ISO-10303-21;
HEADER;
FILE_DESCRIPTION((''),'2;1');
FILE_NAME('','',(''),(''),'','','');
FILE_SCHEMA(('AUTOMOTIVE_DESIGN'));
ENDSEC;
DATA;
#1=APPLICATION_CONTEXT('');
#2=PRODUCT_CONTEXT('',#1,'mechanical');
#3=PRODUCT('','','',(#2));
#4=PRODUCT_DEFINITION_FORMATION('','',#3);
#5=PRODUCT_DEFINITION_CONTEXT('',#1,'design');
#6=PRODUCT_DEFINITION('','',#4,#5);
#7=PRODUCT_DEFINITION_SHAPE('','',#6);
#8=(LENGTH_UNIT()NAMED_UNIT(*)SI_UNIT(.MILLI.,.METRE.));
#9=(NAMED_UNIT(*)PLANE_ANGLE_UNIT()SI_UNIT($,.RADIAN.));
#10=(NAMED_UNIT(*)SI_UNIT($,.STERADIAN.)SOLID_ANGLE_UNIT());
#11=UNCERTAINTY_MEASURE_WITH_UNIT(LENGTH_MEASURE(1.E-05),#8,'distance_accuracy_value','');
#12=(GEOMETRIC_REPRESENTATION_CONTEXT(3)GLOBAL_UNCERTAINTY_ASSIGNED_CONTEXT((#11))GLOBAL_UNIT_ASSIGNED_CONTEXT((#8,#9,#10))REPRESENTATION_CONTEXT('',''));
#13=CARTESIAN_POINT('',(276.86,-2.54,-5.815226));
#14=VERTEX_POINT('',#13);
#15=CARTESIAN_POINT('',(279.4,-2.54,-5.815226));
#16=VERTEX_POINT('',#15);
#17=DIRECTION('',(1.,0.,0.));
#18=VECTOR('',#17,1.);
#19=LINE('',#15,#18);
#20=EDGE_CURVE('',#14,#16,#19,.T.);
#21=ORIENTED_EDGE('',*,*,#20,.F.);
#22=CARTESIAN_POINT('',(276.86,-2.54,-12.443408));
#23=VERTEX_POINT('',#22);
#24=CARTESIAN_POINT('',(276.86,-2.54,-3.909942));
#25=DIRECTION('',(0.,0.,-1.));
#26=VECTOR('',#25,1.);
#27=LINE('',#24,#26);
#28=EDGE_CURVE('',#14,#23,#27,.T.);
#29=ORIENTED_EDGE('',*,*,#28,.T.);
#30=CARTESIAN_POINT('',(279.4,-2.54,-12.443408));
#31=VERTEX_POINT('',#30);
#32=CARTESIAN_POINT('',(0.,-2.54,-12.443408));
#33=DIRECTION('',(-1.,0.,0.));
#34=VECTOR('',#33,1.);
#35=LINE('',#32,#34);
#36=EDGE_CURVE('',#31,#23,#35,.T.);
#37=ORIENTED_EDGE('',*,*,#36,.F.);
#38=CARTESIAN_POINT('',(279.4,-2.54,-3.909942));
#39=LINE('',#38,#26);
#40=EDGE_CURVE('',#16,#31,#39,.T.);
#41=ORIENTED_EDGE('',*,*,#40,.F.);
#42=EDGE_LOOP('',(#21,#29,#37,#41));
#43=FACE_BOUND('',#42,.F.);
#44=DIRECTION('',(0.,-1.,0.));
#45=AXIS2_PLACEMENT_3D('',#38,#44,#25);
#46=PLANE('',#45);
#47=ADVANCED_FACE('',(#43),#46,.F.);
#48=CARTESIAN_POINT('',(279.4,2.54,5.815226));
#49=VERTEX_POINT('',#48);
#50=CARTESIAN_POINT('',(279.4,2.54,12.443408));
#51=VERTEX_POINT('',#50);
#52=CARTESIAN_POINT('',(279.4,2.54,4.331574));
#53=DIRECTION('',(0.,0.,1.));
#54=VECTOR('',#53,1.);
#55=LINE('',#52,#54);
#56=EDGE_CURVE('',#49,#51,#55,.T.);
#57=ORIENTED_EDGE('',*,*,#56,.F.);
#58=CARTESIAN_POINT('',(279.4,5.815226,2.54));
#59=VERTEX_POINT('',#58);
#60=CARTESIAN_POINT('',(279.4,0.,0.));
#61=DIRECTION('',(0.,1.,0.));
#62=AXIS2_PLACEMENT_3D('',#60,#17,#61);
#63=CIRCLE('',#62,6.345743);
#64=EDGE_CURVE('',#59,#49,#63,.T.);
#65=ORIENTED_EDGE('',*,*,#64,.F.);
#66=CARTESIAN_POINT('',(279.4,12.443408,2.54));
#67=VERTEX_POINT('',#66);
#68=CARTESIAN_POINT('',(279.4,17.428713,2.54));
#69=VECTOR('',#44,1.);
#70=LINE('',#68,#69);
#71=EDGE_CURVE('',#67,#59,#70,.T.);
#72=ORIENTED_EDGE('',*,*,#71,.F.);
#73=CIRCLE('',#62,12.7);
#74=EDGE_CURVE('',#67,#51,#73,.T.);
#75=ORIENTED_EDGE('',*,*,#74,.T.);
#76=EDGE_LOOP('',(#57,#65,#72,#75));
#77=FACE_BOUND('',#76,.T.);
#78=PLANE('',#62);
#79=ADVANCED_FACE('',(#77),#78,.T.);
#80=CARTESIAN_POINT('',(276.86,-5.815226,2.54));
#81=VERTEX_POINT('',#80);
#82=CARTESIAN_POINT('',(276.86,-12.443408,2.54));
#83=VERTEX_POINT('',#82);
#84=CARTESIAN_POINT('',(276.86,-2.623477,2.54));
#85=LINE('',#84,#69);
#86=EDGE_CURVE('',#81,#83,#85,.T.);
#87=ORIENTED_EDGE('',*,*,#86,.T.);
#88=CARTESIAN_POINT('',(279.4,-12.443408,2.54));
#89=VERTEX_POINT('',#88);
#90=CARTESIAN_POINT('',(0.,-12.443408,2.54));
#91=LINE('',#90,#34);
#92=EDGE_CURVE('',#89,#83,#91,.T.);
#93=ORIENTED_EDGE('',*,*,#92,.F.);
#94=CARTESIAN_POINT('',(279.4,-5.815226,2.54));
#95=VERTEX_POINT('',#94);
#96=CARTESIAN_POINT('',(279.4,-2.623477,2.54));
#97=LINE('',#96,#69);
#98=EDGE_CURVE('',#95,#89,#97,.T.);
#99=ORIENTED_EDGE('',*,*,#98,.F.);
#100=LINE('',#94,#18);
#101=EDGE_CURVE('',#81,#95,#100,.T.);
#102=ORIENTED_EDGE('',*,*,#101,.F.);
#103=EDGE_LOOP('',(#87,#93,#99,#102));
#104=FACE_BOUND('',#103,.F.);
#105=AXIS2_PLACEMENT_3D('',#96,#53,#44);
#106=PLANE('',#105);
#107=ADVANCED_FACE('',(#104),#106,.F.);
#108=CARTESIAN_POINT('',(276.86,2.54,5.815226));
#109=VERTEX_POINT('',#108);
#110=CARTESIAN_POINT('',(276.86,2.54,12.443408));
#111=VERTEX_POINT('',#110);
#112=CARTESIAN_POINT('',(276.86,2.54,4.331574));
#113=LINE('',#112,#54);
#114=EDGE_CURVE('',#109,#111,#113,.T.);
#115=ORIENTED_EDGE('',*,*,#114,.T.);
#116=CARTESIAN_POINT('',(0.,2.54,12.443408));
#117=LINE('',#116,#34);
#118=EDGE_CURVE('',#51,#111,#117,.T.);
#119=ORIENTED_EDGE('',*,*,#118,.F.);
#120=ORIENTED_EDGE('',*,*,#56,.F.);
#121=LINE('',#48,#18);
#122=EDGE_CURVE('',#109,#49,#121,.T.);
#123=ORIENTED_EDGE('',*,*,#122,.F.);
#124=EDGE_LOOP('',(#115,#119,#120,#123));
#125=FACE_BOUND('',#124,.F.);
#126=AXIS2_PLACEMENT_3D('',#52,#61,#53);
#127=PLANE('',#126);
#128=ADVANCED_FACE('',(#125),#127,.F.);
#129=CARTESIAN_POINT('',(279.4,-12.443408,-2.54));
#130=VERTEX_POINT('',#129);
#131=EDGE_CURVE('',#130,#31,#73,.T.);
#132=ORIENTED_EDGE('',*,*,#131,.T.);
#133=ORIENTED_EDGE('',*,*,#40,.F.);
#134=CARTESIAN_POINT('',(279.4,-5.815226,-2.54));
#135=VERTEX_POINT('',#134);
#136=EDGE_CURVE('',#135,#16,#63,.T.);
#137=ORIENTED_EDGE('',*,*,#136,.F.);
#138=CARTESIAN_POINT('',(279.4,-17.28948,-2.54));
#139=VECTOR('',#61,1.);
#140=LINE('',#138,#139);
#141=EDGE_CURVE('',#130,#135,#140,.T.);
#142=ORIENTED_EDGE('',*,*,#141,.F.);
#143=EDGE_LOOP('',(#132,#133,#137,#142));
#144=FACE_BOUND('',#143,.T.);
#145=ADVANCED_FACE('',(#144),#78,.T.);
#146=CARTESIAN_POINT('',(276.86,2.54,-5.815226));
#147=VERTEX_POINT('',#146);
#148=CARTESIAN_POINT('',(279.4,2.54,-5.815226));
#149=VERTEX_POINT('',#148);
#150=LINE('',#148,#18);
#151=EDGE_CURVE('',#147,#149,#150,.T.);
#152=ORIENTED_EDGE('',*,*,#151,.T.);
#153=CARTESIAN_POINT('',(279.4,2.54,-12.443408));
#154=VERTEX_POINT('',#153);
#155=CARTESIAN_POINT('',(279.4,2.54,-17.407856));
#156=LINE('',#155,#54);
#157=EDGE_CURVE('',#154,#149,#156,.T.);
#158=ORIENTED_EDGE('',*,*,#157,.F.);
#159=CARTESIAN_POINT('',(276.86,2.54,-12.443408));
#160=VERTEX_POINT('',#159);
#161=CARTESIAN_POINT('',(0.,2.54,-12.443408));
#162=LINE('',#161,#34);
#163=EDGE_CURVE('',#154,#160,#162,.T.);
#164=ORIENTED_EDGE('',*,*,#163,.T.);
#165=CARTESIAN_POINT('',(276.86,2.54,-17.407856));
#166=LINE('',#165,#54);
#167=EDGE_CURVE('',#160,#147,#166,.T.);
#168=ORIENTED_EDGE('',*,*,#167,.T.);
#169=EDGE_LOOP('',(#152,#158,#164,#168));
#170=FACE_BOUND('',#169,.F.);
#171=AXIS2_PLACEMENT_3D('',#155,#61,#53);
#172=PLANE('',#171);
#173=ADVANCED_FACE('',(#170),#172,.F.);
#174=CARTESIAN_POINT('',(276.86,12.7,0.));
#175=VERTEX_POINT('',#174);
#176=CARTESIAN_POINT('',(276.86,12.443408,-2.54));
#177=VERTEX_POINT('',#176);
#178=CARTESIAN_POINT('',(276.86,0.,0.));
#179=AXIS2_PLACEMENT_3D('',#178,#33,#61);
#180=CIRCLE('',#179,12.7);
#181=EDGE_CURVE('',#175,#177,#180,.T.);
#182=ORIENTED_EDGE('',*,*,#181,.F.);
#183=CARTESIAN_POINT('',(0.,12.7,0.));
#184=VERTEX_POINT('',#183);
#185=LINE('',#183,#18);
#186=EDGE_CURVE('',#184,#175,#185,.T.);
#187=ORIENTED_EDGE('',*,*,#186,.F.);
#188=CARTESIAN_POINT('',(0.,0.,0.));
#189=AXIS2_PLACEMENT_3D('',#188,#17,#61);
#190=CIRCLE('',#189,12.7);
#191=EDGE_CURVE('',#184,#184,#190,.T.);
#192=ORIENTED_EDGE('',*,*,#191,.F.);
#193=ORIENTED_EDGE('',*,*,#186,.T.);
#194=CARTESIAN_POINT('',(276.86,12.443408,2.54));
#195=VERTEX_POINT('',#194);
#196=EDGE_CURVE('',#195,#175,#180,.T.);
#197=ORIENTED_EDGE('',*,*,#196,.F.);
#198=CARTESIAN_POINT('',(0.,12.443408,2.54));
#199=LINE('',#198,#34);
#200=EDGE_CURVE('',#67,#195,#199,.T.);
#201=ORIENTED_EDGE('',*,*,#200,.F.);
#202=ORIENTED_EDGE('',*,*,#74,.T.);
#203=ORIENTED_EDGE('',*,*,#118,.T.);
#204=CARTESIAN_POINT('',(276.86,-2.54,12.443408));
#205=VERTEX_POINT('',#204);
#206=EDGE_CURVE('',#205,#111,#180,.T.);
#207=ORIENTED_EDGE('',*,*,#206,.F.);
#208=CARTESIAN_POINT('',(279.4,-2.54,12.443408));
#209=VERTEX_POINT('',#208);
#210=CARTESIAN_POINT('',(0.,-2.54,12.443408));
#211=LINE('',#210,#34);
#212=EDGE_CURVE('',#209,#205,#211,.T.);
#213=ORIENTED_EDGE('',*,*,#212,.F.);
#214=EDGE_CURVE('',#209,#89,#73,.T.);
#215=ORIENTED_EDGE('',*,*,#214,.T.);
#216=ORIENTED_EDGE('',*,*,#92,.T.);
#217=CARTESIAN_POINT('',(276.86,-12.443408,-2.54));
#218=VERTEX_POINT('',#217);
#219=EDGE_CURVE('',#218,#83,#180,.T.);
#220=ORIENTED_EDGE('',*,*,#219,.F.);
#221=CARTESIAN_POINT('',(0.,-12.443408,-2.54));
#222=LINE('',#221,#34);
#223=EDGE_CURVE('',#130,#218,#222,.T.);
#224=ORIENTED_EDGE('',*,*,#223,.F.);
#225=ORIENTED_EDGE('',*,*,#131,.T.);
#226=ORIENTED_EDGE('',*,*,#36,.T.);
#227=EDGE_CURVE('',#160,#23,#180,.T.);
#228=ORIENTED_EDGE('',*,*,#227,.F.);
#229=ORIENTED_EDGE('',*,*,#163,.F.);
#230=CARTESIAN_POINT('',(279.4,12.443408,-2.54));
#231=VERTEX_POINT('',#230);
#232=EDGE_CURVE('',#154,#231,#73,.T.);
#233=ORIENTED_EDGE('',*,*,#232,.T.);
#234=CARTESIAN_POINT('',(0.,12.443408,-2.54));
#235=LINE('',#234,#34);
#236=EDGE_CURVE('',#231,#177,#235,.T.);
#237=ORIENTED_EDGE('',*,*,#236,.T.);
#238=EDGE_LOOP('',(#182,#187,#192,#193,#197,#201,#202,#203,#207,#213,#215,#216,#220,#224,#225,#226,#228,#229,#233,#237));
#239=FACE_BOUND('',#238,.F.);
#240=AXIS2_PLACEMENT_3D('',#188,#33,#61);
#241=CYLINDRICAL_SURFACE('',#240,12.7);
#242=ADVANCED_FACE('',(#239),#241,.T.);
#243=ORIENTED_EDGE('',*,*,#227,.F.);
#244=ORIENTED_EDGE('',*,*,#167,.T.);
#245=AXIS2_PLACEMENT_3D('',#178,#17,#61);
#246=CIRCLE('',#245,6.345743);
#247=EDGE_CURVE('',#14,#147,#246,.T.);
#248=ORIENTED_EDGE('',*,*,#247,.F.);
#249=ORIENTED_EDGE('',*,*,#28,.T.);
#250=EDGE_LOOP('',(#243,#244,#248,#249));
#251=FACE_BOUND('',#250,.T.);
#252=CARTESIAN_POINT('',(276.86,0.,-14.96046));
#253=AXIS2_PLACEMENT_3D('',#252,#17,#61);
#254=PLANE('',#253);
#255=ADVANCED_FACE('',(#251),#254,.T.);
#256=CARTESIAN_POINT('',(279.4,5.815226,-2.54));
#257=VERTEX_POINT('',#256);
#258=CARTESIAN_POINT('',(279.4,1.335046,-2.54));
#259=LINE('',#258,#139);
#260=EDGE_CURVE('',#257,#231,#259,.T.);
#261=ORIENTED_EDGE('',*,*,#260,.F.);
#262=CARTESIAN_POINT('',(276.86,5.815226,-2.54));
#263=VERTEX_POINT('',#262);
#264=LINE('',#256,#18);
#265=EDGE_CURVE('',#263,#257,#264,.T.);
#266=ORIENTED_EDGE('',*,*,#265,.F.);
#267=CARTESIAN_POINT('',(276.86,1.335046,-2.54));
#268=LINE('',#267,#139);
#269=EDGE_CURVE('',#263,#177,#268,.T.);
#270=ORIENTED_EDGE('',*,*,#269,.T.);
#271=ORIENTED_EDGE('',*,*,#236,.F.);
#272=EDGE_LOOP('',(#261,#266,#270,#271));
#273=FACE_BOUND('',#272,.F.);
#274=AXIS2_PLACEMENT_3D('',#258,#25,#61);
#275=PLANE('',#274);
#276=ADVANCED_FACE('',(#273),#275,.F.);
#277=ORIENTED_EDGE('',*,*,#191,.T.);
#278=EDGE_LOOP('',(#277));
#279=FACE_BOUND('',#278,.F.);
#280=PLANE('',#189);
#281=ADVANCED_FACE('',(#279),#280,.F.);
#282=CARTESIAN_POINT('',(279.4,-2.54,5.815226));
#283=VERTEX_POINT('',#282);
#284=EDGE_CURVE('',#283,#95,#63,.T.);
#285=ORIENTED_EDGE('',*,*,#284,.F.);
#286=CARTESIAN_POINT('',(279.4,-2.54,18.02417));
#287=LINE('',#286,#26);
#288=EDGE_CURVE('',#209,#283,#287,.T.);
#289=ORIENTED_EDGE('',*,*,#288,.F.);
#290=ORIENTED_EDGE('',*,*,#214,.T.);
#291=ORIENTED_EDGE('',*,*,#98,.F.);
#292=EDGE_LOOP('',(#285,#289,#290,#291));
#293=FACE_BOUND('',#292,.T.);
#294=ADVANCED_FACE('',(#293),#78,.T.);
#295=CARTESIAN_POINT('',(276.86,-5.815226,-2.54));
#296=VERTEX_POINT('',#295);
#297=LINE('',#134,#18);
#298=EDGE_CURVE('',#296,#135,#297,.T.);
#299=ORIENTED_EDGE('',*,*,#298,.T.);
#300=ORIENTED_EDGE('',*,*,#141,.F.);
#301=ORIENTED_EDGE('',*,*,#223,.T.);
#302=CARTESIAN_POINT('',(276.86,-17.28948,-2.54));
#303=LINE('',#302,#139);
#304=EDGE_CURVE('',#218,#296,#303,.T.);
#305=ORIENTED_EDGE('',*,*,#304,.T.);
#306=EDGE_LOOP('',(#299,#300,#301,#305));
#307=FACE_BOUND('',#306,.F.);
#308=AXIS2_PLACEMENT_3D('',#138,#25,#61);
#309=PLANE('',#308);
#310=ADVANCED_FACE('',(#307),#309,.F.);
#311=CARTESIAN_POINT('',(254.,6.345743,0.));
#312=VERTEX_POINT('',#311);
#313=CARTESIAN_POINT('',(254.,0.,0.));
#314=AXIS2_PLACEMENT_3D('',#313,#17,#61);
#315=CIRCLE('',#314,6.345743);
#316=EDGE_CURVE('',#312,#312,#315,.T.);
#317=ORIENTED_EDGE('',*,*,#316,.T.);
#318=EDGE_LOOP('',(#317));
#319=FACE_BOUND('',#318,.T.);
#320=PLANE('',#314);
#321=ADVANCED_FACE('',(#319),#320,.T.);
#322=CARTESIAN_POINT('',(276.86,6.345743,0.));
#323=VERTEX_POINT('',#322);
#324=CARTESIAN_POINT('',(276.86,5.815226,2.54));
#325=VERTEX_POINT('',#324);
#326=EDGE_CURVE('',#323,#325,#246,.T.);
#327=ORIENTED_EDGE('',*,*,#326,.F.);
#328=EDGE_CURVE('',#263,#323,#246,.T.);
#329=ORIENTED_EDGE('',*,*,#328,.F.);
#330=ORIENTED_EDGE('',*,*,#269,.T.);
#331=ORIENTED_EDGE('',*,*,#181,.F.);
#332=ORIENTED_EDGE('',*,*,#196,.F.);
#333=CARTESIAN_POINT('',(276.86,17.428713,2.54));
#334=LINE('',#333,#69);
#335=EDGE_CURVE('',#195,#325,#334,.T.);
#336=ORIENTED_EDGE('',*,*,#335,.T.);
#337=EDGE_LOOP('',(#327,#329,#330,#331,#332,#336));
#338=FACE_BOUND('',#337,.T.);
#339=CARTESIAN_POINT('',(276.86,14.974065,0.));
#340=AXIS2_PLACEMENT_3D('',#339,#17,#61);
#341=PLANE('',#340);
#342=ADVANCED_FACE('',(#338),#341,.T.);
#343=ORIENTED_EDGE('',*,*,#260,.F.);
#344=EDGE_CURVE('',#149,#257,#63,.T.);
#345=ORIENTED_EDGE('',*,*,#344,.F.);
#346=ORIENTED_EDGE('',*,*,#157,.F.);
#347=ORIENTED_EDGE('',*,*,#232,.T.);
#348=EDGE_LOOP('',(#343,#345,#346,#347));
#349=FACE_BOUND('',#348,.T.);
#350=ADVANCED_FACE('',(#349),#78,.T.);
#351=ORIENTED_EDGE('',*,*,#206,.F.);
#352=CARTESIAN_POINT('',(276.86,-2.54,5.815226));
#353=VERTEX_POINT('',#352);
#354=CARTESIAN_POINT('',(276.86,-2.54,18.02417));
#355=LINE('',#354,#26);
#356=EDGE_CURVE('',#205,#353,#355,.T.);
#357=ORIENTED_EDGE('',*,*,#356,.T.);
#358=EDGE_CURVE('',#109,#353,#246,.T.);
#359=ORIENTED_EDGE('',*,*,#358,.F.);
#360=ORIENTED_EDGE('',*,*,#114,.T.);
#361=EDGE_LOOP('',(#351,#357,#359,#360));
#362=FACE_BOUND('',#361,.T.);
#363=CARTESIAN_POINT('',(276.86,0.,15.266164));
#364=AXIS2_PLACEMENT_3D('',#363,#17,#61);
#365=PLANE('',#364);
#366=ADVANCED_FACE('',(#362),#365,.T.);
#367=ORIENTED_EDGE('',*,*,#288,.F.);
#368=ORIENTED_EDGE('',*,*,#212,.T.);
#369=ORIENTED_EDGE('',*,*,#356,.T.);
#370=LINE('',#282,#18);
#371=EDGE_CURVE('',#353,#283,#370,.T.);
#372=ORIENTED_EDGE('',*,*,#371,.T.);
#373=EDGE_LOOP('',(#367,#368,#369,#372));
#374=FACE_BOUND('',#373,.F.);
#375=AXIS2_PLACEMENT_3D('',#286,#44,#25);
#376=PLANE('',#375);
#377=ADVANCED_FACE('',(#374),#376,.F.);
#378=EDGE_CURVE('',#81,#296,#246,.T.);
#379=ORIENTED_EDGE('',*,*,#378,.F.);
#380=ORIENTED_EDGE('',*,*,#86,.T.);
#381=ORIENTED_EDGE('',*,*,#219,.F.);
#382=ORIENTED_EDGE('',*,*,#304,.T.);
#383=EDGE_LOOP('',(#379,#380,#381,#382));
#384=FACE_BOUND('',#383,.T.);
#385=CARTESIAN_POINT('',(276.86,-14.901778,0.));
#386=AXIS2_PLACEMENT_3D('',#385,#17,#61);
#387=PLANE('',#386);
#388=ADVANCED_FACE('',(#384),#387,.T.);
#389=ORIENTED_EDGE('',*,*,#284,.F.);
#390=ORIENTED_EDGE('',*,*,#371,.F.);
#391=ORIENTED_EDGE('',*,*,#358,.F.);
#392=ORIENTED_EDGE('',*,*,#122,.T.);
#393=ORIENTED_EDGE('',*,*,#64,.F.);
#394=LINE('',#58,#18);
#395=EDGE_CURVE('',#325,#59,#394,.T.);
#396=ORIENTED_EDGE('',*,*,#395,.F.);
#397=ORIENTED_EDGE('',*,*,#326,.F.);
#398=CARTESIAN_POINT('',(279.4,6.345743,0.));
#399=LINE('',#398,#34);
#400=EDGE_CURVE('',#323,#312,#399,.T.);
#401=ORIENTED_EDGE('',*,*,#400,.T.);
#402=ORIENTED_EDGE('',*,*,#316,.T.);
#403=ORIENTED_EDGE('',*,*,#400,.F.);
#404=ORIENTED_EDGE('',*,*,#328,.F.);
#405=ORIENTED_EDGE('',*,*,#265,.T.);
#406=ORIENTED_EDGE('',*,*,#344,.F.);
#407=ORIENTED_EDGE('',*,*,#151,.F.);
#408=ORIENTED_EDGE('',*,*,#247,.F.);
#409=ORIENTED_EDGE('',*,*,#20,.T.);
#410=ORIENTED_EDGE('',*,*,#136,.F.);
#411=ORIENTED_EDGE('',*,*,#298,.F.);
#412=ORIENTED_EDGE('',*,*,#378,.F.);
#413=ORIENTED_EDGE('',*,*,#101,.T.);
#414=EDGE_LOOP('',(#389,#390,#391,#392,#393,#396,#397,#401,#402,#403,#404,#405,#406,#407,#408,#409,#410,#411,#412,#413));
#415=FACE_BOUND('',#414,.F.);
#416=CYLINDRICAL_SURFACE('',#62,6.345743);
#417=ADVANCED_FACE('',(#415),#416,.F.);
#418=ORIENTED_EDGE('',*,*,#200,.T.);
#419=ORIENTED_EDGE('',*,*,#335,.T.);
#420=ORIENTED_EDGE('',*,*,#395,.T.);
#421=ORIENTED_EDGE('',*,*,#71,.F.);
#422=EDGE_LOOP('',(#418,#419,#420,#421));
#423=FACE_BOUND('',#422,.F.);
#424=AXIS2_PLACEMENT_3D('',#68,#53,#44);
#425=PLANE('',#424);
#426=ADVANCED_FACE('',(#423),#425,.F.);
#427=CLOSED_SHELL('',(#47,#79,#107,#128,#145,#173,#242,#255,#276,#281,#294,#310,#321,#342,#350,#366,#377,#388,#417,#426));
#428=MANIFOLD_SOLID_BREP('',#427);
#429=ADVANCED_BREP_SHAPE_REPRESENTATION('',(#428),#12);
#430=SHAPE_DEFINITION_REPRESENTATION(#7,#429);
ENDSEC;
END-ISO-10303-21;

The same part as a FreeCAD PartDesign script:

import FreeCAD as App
import Part
import Sketcher
Q = App.Units.Quantity


def add_polygon(sketch, points):
    """Adds a closed chain of lines whose ends are joined by coincident constraints."""
    first, n = sketch.GeometryCount, len(points)
    for a, b in zip(points, points[1:] + points[:1]):
        sketch.addGeometry(Part.LineSegment(App.Vector(*a, 0), App.Vector(*b, 0)), False)
    for i in range(n):
        sketch.addConstraint(Sketcher.Constraint("Coincident", first + i, 2, first + (i + 1) % n, 1))

doc = App.newDocument("Part")
body = doc.addObject("PartDesign::Body", "Body")

sketch1 = body.newObject("Sketcher::SketchObject", "Sketch")
sketch1.AttachmentSupport = (doc.getObject("YZ_Plane"), [""])
sketch1.MapMode = "FlatFace"
sketch1.addGeometry(Part.Circle(App.Vector(0, 0, 0), App.Vector(0, 0, 1), 13), False)
sketch1.addConstraint([
    Sketcher.Constraint("Coincident", 0, 3, -1, 1),
    Sketcher.Constraint("Diameter", 0, Q("1 in")),
])
pad1 = body.newObject("PartDesign::Pad", "Pad")
pad1.Profile = sketch1
pad1.Length = Q("11 in")

sketch2 = body.newObject("Sketcher::SketchObject", "Sketch001")
sketch2.AttachmentSupport = (doc.getObject("YZ_Plane"), [""])
sketch2.MapMode = "FlatFace"
sketch2.AttachmentOffset = App.Placement(App.Vector(0, 0, 11 * 25.4), App.Rotation())
add_polygon(sketch2, [(17, 3), (1, 3), (1, -3), (17, -3)])
add_polygon(sketch2, [(3, 18), (-3, 18), (-3, 4), (3, 4)])
add_polygon(sketch2, [(-17, 3), (-17, -3), (-3, -3), (-3, 3)])
add_polygon(sketch2, [(3, -17), (3, -4), (-3, -4), (-3, -17)])
sketch2.addConstraint([
    Sketcher.Constraint("Horizontal", 0),
    Sketcher.Constraint("Vertical", 1),
    Sketcher.Constraint("Horizontal", 2),
    Sketcher.Constraint("Vertical", 3),
    Sketcher.Constraint("Horizontal", 4),
    Sketcher.Constraint("Vertical", 5),
    Sketcher.Constraint("Horizontal", 6),
    Sketcher.Constraint("Vertical", 7),
    Sketcher.Constraint("Vertical", 8),
    Sketcher.Constraint("Horizontal", 9),
    Sketcher.Constraint("Vertical", 10),
    Sketcher.Constraint("Horizontal", 11),
    Sketcher.Constraint("Vertical", 12),
    Sketcher.Constraint("Horizontal", 13),
    Sketcher.Constraint("Vertical", 14),
    Sketcher.Constraint("Horizontal", 15),
    Sketcher.Constraint("Horizontal", 2, 2, 8, 2),
    Sketcher.Constraint("Horizontal", 3, 2, 10, 2),
    Sketcher.Constraint("Vertical", 7, 2, 12, 2),
    Sketcher.Constraint("Vertical", 5, 2, 13, 2),
    Sketcher.Constraint("Equal", 15, 1),
    Sketcher.Constraint("DistanceX", 4, 2, 4, 1, Q("0.2 in")),
    Sketcher.Constraint("DistanceY", -1, 1, 0, 2, Q("0.1 in")),
    Sketcher.Constraint("DistanceX", 4, 2, -1, 1, Q("0.1 in")),
    Sketcher.Constraint("DistanceX", 0, 2, 0, 1, Q("16.093667 mm")),
    Sketcher.Constraint("DistanceX", 9, 1, 9, 2, Q("14.666003 mm")),
    Sketcher.Constraint("DistanceY", 5, 2, 5, 1, Q("13.692596 mm")),
    Sketcher.Constraint("DistanceY", 12, 1, 12, 2, Q("13.497914 mm")),
    Sketcher.Constraint("DistanceY", -1, 1, 4, 2, Q("18.02417 mm")),
    Sketcher.Constraint("DistanceX", 8, 2, -1, 1, Q("17.28948 mm")),
    Sketcher.Constraint("DistanceY", 12, 2, -1, 1, Q("3.909942 mm")),
    Sketcher.Constraint("DistanceX", -1, 1, 0, 2, Q("1.335046 mm")),
])
pocket1 = body.newObject("PartDesign::Pocket", "Pocket")
pocket1.Profile = sketch2
pocket1.Length = Q("0.1 in")

sketch3 = body.newObject("Sketcher::SketchObject", "Sketch002")
sketch3.AttachmentSupport = (doc.getObject("YZ_Plane"), [""])
sketch3.MapMode = "FlatFace"
sketch3.AttachmentOffset = App.Placement(App.Vector(0, 0, 11 * 25.4), App.Rotation())
sketch3.addGeometry(Part.Circle(App.Vector(0, 0, 0), App.Vector(0, 0, 1), 6), False)
sketch3.addConstraint([
    Sketcher.Constraint("Coincident", 0, 3, -1, 1),
    Sketcher.Constraint("Diameter", 0, Q("12.691486 mm")),
])
pocket2 = body.newObject("PartDesign::Pocket", "Pocket001")
pocket2.Profile = sketch3
pocket2.Length = Q("1 in")

doc.recompute()
